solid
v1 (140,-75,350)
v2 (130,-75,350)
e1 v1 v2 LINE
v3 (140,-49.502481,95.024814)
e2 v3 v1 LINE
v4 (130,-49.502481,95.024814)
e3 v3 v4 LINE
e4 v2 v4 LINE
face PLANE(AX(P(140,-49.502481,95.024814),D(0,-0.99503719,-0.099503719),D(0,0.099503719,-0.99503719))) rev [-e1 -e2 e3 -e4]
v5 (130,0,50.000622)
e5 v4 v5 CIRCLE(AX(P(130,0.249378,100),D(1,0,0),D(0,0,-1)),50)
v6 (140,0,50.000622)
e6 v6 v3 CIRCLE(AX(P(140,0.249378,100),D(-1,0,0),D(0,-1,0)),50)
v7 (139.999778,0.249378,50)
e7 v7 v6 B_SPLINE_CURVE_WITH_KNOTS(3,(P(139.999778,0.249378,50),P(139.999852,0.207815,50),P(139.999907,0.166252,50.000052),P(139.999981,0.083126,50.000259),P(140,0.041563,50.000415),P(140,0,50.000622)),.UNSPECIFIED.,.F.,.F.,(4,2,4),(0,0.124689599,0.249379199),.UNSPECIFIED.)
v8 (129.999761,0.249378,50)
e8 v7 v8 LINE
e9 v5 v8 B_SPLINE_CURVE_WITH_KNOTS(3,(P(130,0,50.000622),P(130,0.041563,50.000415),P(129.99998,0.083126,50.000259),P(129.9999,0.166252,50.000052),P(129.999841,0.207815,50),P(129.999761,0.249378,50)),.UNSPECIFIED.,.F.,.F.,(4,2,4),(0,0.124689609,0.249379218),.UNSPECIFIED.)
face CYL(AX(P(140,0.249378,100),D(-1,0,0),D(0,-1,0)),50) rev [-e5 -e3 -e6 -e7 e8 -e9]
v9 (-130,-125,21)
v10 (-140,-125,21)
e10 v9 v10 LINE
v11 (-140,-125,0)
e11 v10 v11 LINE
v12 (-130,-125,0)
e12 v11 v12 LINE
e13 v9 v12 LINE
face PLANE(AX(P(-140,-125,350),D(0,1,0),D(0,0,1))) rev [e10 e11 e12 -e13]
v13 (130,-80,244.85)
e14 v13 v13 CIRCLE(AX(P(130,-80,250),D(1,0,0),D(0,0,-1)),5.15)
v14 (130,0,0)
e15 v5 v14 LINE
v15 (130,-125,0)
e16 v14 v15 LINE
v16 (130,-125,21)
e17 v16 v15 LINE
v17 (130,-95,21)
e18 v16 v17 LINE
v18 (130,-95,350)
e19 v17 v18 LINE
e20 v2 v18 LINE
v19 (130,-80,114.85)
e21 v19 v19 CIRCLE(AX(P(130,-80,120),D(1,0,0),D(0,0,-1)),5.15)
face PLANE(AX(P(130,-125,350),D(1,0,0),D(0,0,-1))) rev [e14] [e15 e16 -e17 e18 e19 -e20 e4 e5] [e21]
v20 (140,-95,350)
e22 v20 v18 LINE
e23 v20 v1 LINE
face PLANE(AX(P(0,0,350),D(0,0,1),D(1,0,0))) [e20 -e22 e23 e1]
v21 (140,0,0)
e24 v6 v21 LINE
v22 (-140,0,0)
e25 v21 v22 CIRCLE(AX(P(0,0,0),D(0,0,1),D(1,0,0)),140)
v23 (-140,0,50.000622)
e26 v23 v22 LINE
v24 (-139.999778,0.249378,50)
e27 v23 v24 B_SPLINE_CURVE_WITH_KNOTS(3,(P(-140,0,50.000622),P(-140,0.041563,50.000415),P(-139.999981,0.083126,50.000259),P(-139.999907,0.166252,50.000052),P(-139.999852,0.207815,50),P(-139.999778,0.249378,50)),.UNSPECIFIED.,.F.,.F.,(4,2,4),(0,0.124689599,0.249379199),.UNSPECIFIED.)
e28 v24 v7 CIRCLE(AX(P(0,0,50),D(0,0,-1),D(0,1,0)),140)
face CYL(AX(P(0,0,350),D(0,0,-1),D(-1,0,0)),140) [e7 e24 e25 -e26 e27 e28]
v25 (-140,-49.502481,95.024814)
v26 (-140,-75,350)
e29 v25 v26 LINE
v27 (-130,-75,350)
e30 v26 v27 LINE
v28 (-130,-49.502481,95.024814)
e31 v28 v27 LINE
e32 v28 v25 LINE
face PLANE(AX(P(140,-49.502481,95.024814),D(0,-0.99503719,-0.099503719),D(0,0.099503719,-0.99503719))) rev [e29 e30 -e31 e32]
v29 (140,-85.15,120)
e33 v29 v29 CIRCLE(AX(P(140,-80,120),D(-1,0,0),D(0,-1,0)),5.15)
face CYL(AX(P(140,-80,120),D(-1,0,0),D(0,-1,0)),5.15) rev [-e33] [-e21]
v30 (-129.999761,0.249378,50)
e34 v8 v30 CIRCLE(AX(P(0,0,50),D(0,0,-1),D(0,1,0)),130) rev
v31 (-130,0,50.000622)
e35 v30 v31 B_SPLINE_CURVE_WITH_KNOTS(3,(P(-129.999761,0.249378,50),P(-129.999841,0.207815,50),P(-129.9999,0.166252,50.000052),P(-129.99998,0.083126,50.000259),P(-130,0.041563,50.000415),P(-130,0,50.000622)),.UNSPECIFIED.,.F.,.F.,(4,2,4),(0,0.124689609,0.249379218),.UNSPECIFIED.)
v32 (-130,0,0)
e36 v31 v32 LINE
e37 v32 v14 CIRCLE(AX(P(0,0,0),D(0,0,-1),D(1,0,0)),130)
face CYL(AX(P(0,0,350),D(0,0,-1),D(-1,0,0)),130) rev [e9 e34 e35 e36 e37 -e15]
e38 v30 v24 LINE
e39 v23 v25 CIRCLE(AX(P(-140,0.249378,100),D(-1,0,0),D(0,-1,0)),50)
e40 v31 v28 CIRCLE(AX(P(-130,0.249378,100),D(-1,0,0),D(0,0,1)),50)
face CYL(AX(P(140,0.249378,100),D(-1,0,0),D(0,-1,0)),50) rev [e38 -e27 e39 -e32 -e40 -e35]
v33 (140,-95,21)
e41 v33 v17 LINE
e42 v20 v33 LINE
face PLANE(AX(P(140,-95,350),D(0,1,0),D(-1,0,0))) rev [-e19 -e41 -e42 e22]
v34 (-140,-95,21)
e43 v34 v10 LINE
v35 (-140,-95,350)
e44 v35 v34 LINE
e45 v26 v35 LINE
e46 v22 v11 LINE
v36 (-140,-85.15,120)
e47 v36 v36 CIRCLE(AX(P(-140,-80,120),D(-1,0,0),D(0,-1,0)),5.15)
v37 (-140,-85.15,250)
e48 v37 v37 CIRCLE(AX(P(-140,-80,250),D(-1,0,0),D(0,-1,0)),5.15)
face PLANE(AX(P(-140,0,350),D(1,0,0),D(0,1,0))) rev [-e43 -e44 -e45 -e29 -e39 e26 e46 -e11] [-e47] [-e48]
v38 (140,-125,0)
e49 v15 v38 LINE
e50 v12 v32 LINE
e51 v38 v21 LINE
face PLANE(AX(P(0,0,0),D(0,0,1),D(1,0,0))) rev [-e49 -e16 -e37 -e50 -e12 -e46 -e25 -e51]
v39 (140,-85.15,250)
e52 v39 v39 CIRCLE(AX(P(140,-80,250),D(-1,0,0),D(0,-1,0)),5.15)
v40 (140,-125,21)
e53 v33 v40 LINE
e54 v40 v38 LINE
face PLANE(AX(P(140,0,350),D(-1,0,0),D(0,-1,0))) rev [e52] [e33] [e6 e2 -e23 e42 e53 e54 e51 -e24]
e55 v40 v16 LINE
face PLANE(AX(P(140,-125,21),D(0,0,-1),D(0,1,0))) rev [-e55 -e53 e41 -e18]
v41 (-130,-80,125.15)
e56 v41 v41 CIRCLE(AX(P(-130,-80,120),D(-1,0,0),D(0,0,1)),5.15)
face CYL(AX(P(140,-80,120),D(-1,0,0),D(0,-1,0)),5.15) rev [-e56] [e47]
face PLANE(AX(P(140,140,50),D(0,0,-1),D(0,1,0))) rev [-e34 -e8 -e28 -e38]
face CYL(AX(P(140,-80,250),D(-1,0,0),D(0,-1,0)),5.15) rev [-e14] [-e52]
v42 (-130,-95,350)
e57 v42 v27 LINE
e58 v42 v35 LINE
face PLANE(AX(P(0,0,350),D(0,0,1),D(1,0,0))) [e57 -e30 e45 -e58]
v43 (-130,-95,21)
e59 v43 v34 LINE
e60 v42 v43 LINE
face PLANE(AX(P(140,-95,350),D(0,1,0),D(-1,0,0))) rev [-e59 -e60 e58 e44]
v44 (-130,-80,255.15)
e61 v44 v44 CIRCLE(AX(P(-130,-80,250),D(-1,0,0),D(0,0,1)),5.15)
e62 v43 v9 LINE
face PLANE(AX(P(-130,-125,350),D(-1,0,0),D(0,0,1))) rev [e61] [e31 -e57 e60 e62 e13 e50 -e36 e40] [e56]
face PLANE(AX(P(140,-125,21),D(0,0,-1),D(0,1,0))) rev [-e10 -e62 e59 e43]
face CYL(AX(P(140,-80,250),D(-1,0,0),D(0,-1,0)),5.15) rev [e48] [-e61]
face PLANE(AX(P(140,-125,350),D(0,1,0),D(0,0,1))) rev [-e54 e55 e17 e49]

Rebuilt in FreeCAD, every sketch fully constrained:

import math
import FreeCAD as App
import Part
import Sketcher
from FreeCAD import Vector
Q = App.Units.Quantity

doc = App.newDocument("Part")
params = doc.addObject("Spreadsheet::Sheet", "Params")
for row, (alias, value) in enumerate([
    ("sketch1_radius", "130 mm"),
    ("sketch1_radius2", "140 mm"),
    ("sketch1_height", "125 mm"),
    ("pad1_length", "350 mm"),
    ("sketch2_radius", "50 mm"),
    ("sketch2_width", "30 mm"),
    ("sketch2_width2", "215 mm"),
    ("sketch2_height", "329 mm"),
    ("sketch2_height2", "300 mm"),
    ("sketch3_diameter", "10.3 mm"),
], start=1):
    params.set(f"A{row}", alias)
    params.set(f"B{row}", "=" + value)
    params.setAlias(f"B{row}", alias)

body = doc.addObject("PartDesign::Body", "Body")

# Sketch on XY plane
sketch1 = doc.addObject("Sketcher::SketchObject", "Sketch")
body.addObject(sketch1)
sketch1.AttachmentSupport = (doc.XY_Plane, [""])
sketch1.MapMode = "FlatFace"
sketch1.addGeometry([
    Part.LineSegment(Vector(-140, 0, 0), Vector(-140, -125, 0)),  # 0
    Part.LineSegment(Vector(-140, -125, 0), Vector(-130, -125, 0)),  # 1
    Part.LineSegment(Vector(-130, -125, 0), Vector(-130, 0, 0)),  # 2
    Part.ArcOfCircle(Part.Circle(Vector(0, 0, 0), Vector(0, 0, 1), 130), math.radians(0), math.radians(180)),  # 3
    Part.LineSegment(Vector(130, 0, 0), Vector(130, -125, 0)),  # 4
    Part.LineSegment(Vector(130, -125, 0), Vector(140, -125, 0)),  # 5
    Part.LineSegment(Vector(140, -125, 0), Vector(140, 0, 0)),  # 6
    Part.ArcOfCircle(Part.Circle(Vector(0, 0, 0), Vector(0, 0, 1), 140), math.radians(0), math.radians(180)),  # 7
], False)
sketch1.addConstraint([
    Sketcher.Constraint("Coincident", 0, 2, 1, 1),
    Sketcher.Constraint("Coincident", 1, 2, 2, 1),
    Sketcher.Constraint("Tangent", 2, 2, 3, 2),
    Sketcher.Constraint("Tangent", 3, 1, 4, 1),
    Sketcher.Constraint("Coincident", 4, 2, 5, 1),
    Sketcher.Constraint("Coincident", 5, 2, 6, 1),
    Sketcher.Constraint("Tangent", 6, 2, 7, 1),
    Sketcher.Constraint("Tangent", 7, 2, 0, 1),
    Sketcher.Constraint("Vertical", 0),
    Sketcher.Constraint("Horizontal", 1),
    Sketcher.Constraint("Vertical", 2),
    Sketcher.Constraint("Vertical", 4),
    Sketcher.Constraint("Horizontal", 5),
    Sketcher.Constraint("Vertical", 6),
    Sketcher.Constraint("Coincident", 3, 3, -1, 1),
    Sketcher.Constraint("Coincident", 7, 3, -1, 1),
    Sketcher.Constraint("Horizontal", 1, 2, 4, 2),
    Sketcher.Constraint("Radius", 3, Q("130 mm")),
    Sketcher.Constraint("Radius", 7, Q("140 mm")),
    Sketcher.Constraint("DistanceY", 0, 2, 0, 1, Q("125 mm")),
])
sketch1.setExpression("Constraints[17]", "Params.sketch1_radius")
sketch1.setExpression("Constraints[18]", "Params.sketch1_radius2")
sketch1.setExpression("Constraints[19]", "Params.sketch1_height")
pad1 = doc.addObject("PartDesign::Pad", "Pad")
body.addObject(pad1)
pad1.Profile = sketch1
pad1.setExpression("Length", "Params.pad1_length")

# Sketch on YZ plane
sketch2 = doc.addObject("Sketcher::SketchObject", "Sketch001")
body.addObject(sketch2)
sketch2.AttachmentSupport = (doc.YZ_Plane, [""])
sketch2.MapMode = "FlatFace"
sketch2.AttachmentOffset = App.Placement(Vector(0, 0, -140), App.Rotation())
sketch2.addGeometry([
    Part.LineSegment(Vector(-95, 21, 0), Vector(-125, 21, 0)),  # 0
    Part.LineSegment(Vector(-125, 21, 0), Vector(-125, 350, 0)),  # 1
    Part.LineSegment(Vector(-125, 350, 0), Vector(-95, 350, 0)),  # 2
    Part.LineSegment(Vector(-95, 350, 0), Vector(-95, 21, 0)),  # 3
    Part.LineSegment(Vector(140, 50, 0), Vector(0, 50, 0)),  # 4
    Part.ArcOfCircle(Part.Circle(Vector(0, 100, 0), Vector(0, 0, 1), 50), math.radians(-174), math.radians(-90)),  # 5
    Part.LineSegment(Vector(-50, 95, 0), Vector(-75, 350, 0)),  # 6
    Part.LineSegment(Vector(-75, 350, 0), Vector(140, 350, 0)),  # 7
    Part.LineSegment(Vector(140, 350, 0), Vector(140, 50, 0)),  # 8
], False)
sketch2.addConstraint([
    Sketcher.Constraint("Coincident", 0, 2, 1, 1),
    Sketcher.Constraint("Coincident", 1, 2, 2, 1),
    Sketcher.Constraint("Coincident", 2, 2, 3, 1),
    Sketcher.Constraint("Coincident", 3, 2, 0, 1),
    Sketcher.Constraint("Tangent", 4, 2, 5, 2),
    Sketcher.Constraint("Tangent", 5, 1, 6, 1),
    Sketcher.Constraint("Coincident", 6, 2, 7, 1),
    Sketcher.Constraint("Coincident", 7, 2, 8, 1),
    Sketcher.Constraint("Coincident", 8, 2, 4, 1),
    Sketcher.Constraint("Horizontal", 0),
    Sketcher.Constraint("Vertical", 1),
    Sketcher.Constraint("Horizontal", 2),
    Sketcher.Constraint("Vertical", 3),
    Sketcher.Constraint("Horizontal", 4),
    Sketcher.Constraint("Horizontal", 7),
    Sketcher.Constraint("Vertical", 8),
    Sketcher.Constraint("Horizontal", 2, 2, 6, 2),
    Sketcher.Constraint("Radius", 5, Q("50 mm")),
    Sketcher.Constraint("DistanceX", 0, 2, 0, 1, Q("30 mm")),
    Sketcher.Constraint("DistanceX", 7, 1, 7, 2, Q("215 mm")),
    Sketcher.Constraint("DistanceY", 1, 1, 1, 2, Q("329 mm")),
    Sketcher.Constraint("DistanceY", 8, 2, 8, 1, Q("300 mm")),
    Sketcher.Constraint("DistanceY", -1, 1, 5, 3, Q("100 mm")),
    Sketcher.Constraint("DistanceX", 0, 2, -1, 1, Q("125 mm")),
    Sketcher.Constraint("DistanceX", 6, 2, -1, 1, Q("75 mm")),
    Sketcher.Constraint("DistanceX", 4, 2, 4, 1, Q("139.750622 mm")),
])
sketch2.setExpression("Constraints[17]", "Params.sketch2_radius")
sketch2.setExpression("Constraints[18]", "Params.sketch2_width")
sketch2.setExpression("Constraints[19]", "Params.sketch2_width2")
sketch2.setExpression("Constraints[20]", "Params.sketch2_height")
sketch2.setExpression("Constraints[21]", "Params.sketch2_height2")
pocket1 = doc.addObject("PartDesign::Pocket", "Pocket")
body.addObject(pocket1)
pocket1.Profile = sketch2
pocket1.Type = "ThroughAll"
pocket1.Reversed = True

# Sketch on YZ plane
sketch3 = doc.addObject("Sketcher::SketchObject", "Sketch002")
body.addObject(sketch3)
sketch3.AttachmentSupport = (doc.YZ_Plane, [""])
sketch3.MapMode = "FlatFace"
sketch3.AttachmentOffset = App.Placement(Vector(0, 0, -140), App.Rotation())
sketch3.addGeometry([
    Part.Circle(Vector(-80, 120, 0), Vector(0, 0, 1), 5),
    Part.Circle(Vector(-80, 250, 0), Vector(0, 0, 1), 5),
], False)
sketch3.addConstraint([
    Sketcher.Constraint("Equal", 0, 1),
    Sketcher.Constraint("Vertical", 0, 3, 1, 3),
    Sketcher.Constraint("Diameter", 0, Q("10.3 mm")),
    Sketcher.Constraint("DistanceX", 0, 3, -1, 1, Q("80 mm")),
    Sketcher.Constraint("DistanceY", -1, 1, 0, 3, Q("120 mm")),
    Sketcher.Constraint("DistanceY", -1, 1, 1, 3, Q("250 mm")),
])
sketch3.setExpression("Constraints[2]", "Params.sketch3_diameter")
pocket2 = doc.addObject("PartDesign::Pocket", "Pocket001")
body.addObject(pocket2)
pocket2.Profile = sketch3
pocket2.Type = "ThroughAll"
pocket2.Reversed = True

doc.recompute()
